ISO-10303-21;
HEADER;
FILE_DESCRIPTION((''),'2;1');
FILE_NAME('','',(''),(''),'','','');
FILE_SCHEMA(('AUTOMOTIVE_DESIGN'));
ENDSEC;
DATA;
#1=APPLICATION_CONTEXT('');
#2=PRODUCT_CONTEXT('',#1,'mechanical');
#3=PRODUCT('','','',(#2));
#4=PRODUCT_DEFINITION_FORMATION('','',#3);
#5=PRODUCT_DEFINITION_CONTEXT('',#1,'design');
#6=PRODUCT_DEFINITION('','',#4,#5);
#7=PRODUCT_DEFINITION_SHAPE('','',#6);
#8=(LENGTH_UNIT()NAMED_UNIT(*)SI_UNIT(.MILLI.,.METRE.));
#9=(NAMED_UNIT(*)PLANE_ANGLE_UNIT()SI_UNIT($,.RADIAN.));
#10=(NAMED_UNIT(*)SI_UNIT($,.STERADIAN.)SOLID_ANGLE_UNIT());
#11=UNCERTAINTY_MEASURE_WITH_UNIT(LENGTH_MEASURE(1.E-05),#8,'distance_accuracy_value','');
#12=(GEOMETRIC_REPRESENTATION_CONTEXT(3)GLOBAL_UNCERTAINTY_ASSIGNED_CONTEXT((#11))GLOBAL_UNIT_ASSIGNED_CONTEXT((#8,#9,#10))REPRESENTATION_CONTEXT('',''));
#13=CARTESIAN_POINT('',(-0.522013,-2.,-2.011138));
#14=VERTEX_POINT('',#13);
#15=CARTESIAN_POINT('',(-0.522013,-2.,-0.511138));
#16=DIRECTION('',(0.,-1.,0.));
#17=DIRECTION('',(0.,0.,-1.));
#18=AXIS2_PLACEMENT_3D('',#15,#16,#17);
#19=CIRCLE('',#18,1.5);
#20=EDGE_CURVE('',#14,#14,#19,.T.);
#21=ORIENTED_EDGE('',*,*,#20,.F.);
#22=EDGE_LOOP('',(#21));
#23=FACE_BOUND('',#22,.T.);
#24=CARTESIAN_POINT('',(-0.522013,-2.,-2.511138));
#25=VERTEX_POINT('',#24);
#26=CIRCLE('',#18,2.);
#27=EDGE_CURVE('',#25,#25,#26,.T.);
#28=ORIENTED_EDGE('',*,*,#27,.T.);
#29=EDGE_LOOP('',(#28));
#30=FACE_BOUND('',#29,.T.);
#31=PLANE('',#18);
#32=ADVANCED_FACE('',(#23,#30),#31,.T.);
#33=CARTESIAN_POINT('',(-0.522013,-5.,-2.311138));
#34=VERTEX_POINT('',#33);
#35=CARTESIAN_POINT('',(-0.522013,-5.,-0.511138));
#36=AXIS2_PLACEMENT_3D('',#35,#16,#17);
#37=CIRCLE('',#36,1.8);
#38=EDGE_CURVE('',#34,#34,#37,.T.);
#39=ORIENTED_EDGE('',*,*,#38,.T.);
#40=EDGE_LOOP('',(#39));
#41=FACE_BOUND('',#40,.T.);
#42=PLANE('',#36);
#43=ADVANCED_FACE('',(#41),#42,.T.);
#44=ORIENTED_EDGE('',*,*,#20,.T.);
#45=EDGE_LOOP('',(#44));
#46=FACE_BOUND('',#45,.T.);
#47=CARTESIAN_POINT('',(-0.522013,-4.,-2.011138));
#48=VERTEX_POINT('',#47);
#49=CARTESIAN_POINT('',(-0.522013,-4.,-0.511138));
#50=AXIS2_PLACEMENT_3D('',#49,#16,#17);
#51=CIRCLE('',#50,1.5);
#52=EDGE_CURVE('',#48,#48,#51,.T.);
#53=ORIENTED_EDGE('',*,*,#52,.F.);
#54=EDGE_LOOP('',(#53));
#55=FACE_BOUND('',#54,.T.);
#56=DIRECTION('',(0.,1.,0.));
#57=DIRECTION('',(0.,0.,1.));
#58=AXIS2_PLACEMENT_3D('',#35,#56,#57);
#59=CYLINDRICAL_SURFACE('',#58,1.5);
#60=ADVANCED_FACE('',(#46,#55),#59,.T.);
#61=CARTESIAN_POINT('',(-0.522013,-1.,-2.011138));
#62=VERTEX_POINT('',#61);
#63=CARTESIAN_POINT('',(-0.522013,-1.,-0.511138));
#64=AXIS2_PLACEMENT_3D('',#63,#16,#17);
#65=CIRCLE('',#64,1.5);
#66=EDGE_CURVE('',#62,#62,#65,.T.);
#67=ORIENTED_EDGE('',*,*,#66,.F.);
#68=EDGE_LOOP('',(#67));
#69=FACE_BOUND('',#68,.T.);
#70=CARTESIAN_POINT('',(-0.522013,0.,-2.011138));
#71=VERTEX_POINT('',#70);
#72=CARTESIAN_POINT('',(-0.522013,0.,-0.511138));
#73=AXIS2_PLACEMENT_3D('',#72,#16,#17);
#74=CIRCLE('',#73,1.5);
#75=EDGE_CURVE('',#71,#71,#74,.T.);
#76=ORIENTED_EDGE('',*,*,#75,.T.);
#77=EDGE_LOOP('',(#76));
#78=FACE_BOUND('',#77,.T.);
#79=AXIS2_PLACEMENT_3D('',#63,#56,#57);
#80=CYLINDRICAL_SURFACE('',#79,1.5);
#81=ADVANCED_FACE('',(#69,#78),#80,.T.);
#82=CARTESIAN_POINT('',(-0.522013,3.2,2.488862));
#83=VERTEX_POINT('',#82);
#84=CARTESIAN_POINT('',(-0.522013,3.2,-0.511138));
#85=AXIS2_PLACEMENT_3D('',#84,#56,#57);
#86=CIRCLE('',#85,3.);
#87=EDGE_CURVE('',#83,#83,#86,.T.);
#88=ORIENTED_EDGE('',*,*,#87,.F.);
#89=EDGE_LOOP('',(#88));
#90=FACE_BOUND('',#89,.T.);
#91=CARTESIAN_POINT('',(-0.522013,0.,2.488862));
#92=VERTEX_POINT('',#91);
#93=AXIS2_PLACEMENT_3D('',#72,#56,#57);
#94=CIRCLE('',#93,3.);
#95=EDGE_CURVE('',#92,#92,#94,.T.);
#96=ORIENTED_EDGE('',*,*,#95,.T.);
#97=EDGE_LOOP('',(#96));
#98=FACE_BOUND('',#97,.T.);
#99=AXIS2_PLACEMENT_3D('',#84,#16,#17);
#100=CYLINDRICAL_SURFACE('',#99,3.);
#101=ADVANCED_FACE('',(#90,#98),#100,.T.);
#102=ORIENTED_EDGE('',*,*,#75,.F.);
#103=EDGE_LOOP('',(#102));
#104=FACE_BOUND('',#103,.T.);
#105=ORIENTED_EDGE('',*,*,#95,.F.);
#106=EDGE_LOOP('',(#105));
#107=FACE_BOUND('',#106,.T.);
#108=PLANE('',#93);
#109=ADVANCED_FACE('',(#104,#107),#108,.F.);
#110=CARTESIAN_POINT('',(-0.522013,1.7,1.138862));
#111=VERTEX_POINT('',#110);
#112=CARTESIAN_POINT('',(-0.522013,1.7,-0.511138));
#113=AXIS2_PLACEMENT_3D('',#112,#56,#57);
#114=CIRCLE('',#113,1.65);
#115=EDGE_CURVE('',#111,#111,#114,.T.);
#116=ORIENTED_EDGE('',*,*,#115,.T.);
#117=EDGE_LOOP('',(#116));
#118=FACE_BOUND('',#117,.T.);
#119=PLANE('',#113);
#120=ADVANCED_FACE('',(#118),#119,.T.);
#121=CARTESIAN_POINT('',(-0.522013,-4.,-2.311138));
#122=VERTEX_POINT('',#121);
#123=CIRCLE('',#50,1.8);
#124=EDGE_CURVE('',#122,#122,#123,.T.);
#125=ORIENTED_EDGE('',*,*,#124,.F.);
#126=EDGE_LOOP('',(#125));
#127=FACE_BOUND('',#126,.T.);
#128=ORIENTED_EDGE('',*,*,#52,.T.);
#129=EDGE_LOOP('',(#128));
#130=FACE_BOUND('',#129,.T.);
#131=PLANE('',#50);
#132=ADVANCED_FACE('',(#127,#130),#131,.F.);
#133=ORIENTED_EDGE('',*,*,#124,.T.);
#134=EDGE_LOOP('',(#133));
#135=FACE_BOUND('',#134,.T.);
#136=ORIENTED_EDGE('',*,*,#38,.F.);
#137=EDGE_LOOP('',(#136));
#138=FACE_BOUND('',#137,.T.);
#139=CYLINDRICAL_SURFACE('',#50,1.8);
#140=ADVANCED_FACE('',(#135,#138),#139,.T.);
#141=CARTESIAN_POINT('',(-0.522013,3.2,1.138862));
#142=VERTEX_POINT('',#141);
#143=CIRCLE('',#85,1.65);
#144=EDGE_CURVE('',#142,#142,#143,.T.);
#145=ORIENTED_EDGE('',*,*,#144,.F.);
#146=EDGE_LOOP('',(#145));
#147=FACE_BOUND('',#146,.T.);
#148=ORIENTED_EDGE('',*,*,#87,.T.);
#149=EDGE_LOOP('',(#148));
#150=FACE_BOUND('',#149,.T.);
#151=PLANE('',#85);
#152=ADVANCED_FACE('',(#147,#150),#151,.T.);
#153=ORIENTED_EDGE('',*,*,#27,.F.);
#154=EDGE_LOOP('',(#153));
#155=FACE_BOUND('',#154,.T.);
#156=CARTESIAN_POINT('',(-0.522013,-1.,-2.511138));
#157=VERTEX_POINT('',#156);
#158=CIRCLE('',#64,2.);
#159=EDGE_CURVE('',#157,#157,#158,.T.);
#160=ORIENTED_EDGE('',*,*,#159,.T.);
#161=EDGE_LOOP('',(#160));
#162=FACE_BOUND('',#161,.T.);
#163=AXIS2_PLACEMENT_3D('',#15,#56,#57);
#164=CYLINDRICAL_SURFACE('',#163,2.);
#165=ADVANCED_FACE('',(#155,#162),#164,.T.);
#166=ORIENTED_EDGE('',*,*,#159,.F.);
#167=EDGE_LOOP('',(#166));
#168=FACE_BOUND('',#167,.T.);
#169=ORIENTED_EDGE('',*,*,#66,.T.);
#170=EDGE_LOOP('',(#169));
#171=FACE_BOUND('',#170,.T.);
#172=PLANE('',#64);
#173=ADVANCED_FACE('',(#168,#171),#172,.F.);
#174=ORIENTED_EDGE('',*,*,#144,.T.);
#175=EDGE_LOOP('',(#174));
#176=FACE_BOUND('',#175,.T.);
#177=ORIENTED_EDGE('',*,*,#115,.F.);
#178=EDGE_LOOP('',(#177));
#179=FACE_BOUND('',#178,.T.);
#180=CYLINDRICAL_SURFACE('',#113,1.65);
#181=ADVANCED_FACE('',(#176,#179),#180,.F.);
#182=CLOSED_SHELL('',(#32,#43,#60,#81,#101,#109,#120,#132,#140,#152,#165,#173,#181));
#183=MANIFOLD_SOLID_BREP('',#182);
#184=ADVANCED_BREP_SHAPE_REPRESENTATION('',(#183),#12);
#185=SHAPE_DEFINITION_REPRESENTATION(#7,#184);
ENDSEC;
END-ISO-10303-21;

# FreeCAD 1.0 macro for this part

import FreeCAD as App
import Part
import Sketcher

V = App.Vector
Q = App.Units.Quantity

doc = App.newDocument("Part")
body = doc.addObject("PartDesign::Body", "Body")

sketch1 = body.newObject("Sketcher::SketchObject", "Sketch")
sketch1.AttachmentSupport = (doc.getObject("XZ_Plane"), [""])
sketch1.MapMode = "FlatFace"
sketch1.addGeometry(Part.Circle(V(-0.5, -0.5, 0), V(0, 0, 1), 3), False)
sketch1.addConstraint([
    Sketcher.Constraint("Diameter", 0, Q("6 mm")),
    Sketcher.Constraint("DistanceY", 0, 3, -1, 1, Q("0.511138 mm")),
    Sketcher.Constraint("DistanceX", 0, 3, -1, 1, Q("0.522013 mm")),
])
pad1 = body.newObject("PartDesign::Pad", "Pad")
pad1.Profile = sketch1
pad1.Length = 3.2
pad1.Reversed = True

sketch2 = body.newObject("Sketcher::SketchObject", "Sketch001")
sketch2.AttachmentSupport = (doc.getObject("XZ_Plane"), [""])
sketch2.MapMode = "FlatFace"
sketch2.addGeometry(Part.Circle(V(-0.5, -0.5, 0), V(0, 0, 1), 1.6), False)
sketch2.addConstraint([
    Sketcher.Constraint("Diameter", 0, Q("3.2 mm")),
    Sketcher.Constraint("DistanceY", 0, 3, -1, 1, Q("0.511138 mm")),
    Sketcher.Constraint("DistanceX", 0, 3, -1, 1, Q("0.522013 mm")),
])
pad2 = body.newObject("PartDesign::Pad", "Pad001")
pad2.Profile = sketch2
pad2.Length = 1
pad2.Reversed = True

sketch3 = body.newObject("Sketcher::SketchObject", "Sketch002")
sketch3.AttachmentSupport = (doc.getObject("XZ_Plane"), [""])
sketch3.MapMode = "FlatFace"
sketch3.addGeometry(Part.Circle(V(-0.5, -0.5, 0), V(0, 0, 1), 1.5), False)
sketch3.addConstraint([
    Sketcher.Constraint("Diameter", 0, Q("3 mm")),
    Sketcher.Constraint("DistanceY", 0, 3, -1, 1, Q("0.511138 mm")),
    Sketcher.Constraint("DistanceX", 0, 3, -1, 1, Q("0.522013 mm")),
])
pad3 = body.newObject("PartDesign::Pad", "Pad002")
pad3.Profile = sketch3
pad3.Length = 1

sketch4 = body.newObject("Sketcher::SketchObject", "Sketch003")
sketch4.AttachmentSupport = (doc.getObject("XZ_Plane"), [""])
sketch4.MapMode = "FlatFace"
sketch4.AttachmentOffset = App.Placement(V(0, 0, 1), App.Rotation())
sketch4.addGeometry(Part.Circle(V(-0.5, -0.5, 0), V(0, 0, 1), 2), False)
sketch4.addConstraint([
    Sketcher.Constraint("Diameter", 0, Q("4 mm")),
    Sketcher.Constraint("DistanceY", 0, 3, -1, 1, Q("0.511138 mm")),
    Sketcher.Constraint("DistanceX", 0, 3, -1, 1, Q("0.522013 mm")),
])
pad4 = body.newObject("PartDesign::Pad", "Pad003")
pad4.Profile = sketch4
pad4.Length = 1

sketch5 = body.newObject("Sketcher::SketchObject", "Sketch004")
sketch5.AttachmentSupport = (doc.getObject("XZ_Plane"), [""])
sketch5.MapMode = "FlatFace"
sketch5.AttachmentOffset = App.Placement(V(0, 0, 2), App.Rotation())
sketch5.addGeometry(Part.Circle(V(-0.5, -0.5, 0), V(0, 0, 1), 1.5), False)
sketch5.addConstraint([
    Sketcher.Constraint("Diameter", 0, Q("3 mm")),
    Sketcher.Constraint("DistanceY", 0, 3, -1, 1, Q("0.511138 mm")),
    Sketcher.Constraint("DistanceX", 0, 3, -1, 1, Q("0.522013 mm")),
])
pad5 = body.newObject("PartDesign::Pad", "Pad004")
pad5.Profile = sketch5
pad5.Length = 3

sketch6 = body.newObject("Sketcher::SketchObject", "Sketch005")
sketch6.AttachmentSupport = (doc.getObject("XZ_Plane"), [""])
sketch6.MapMode = "FlatFace"
sketch6.AttachmentOffset = App.Placement(V(0, 0, 5), App.Rotation())
sketch6.addGeometry(Part.Circle(V(-0.5, -0.5, 0), V(0, 0, 1), 1.8), False)
sketch6.addConstraint([
    Sketcher.Constraint("Diameter", 0, Q("3.6 mm")),
    Sketcher.Constraint("DistanceY", 0, 3, -1, 1, Q("0.511138 mm")),
    Sketcher.Constraint("DistanceX", 0, 3, -1, 1, Q("0.522013 mm")),
])
pad6 = body.newObject("PartDesign::Pad", "Pad005")
pad6.Profile = sketch6
pad6.Length = 1
pad6.Reversed = True

sketch7 = body.newObject("Sketcher::SketchObject", "Sketch006")
sketch7.AttachmentSupport = (doc.getObject("XZ_Plane"), [""])
sketch7.MapMode = "FlatFace"
sketch7.AttachmentOffset = App.Placement(V(0, 0, -3.2), App.Rotation())
sketch7.addGeometry(Part.Circle(V(-0.5, -0.5, 0), V(0, 0, 1), 1.6), False)
sketch7.addConstraint([
    Sketcher.Constraint("Diameter", 0, Q("3.3 mm")),
    Sketcher.Constraint("DistanceY", 0, 3, -1, 1, Q("0.511138 mm")),
    Sketcher.Constraint("DistanceX", 0, 3, -1, 1, Q("0.522013 mm")),
])
pocket1 = body.newObject("PartDesign::Pocket", "Pocket")
pocket1.Profile = sketch7
pocket1.Length = 1.5
pocket1.Reversed = True

doc.recompute()
